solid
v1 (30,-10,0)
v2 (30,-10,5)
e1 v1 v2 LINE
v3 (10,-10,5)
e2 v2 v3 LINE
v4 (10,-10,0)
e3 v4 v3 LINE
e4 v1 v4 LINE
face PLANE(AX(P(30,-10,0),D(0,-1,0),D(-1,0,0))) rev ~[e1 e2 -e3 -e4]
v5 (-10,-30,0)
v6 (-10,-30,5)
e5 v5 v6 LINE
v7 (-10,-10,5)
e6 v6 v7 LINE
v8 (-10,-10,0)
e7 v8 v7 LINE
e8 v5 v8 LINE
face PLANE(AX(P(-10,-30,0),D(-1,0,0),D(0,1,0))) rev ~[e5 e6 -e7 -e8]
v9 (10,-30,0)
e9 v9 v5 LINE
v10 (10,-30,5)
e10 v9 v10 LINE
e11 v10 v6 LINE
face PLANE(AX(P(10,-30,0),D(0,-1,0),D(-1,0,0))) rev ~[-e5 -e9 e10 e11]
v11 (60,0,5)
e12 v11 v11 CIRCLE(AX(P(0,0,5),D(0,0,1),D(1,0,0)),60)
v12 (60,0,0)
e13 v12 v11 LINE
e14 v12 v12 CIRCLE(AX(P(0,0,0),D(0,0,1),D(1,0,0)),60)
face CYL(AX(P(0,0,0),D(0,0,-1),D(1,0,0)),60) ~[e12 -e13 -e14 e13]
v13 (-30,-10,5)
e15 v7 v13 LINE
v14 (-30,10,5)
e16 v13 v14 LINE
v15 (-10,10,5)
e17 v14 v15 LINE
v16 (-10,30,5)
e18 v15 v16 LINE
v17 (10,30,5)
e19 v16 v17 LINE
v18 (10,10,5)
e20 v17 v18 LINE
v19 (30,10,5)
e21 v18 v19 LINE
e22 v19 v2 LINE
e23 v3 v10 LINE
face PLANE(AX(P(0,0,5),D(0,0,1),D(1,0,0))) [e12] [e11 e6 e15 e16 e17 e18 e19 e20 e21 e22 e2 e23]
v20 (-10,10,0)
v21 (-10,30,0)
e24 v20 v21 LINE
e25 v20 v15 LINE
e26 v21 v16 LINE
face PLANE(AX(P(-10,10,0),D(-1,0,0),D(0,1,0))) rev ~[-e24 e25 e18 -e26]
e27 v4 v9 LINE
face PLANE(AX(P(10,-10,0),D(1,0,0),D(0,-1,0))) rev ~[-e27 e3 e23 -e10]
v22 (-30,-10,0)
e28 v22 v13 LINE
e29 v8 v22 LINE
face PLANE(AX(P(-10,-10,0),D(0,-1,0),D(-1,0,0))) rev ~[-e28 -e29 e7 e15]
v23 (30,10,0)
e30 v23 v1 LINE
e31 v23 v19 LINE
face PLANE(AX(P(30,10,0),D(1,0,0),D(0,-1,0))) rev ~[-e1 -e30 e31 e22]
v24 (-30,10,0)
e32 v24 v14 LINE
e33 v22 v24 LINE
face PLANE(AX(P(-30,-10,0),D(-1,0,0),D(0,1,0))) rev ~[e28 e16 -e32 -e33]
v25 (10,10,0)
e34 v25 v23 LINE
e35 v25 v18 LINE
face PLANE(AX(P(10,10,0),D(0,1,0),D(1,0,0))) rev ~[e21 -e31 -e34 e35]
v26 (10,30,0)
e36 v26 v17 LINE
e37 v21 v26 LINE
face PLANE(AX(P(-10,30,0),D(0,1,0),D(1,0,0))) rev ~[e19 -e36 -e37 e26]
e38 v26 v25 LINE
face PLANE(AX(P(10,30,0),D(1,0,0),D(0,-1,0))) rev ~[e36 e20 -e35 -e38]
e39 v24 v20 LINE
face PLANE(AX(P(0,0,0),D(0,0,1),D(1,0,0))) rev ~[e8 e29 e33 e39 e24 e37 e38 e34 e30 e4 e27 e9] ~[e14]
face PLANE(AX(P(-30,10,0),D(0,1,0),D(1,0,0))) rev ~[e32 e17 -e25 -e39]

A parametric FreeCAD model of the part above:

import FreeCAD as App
import Part
import Sketcher

V = App.Vector


def add_polygon(sketch, points):
    """Adds a closed chain of lines whose ends are joined by coincident constraints."""
    first, n = sketch.GeometryCount, len(points)
    for a, b in zip(points, points[1:] + points[:1]):
        sketch.addGeometry(Part.LineSegment(App.Vector(*a, 0), App.Vector(*b, 0)), False)
    for i in range(n):
        sketch.addConstraint(Sketcher.Constraint("Coincident", first + i, 2, first + (i + 1) % n, 1))

doc = App.newDocument("Part")
body = doc.addObject("PartDesign::Body", "Body")

# Sketch on XY plane
sketch1 = body.newObject("Sketcher::SketchObject", "Sketch")
sketch1.AttachmentSupport = (doc.getObject("XY_Plane"), [""])
sketch1.MapMode = "FlatFace"
sketch1.addGeometry(Part.Circle(V(0, 0, 0), V(0, 0, 1), 60), False)  # 0
add_polygon(sketch1, [(-10, 10), (-10, 30), (10, 30), (10, 10), (30, 10), (30, -10), (10, -10), (10, -30), (-10, -30), (-10, -10), (-30, -10), (-30, 10)])  # lines 1-12
sketch1.addConstraint([
    Sketcher.Constraint("Vertical", 1),
    Sketcher.Constraint("Horizontal", 2),
    Sketcher.Constraint("Vertical", 3),
    Sketcher.Constraint("Horizontal", 4),
    Sketcher.Constraint("Vertical", 5),
    Sketcher.Constraint("Horizontal", 6),
    Sketcher.Constraint("Vertical", 7),
    Sketcher.Constraint("Horizontal", 8),
    Sketcher.Constraint("Vertical", 9),
    Sketcher.Constraint("Horizontal", 10),
    Sketcher.Constraint("Vertical", 11),
    Sketcher.Constraint("Horizontal", 12),
    Sketcher.Constraint("Coincident", 0, 3, -1, 1),
    Sketcher.Constraint("Symmetric", 1, 2, 7, 2, -1, 1),
    Sketcher.Constraint("Symmetric", 3, 2, 9, 2, -1, 1),
    Sketcher.Constraint("Symmetric", 5, 2, 11, 2, -1, 1),
    Sketcher.Constraint("Symmetric", 6, 2, 9, 2, -2),
    Sketcher.Constraint("Equal", 2, 4),
    Sketcher.Constraint("Equal", 12, 1),
    Sketcher.Constraint("Equal", 3, 5),
    Sketcher.Constraint("Diameter", 0, 120.0),
    Sketcher.Constraint("DistanceX", 2, 1, 2, 2, 20.0),
])
pad1 = body.newObject("PartDesign::Pad", "Pad")
pad1.Profile = sketch1
pad1.Length = 5

doc.recompute()
